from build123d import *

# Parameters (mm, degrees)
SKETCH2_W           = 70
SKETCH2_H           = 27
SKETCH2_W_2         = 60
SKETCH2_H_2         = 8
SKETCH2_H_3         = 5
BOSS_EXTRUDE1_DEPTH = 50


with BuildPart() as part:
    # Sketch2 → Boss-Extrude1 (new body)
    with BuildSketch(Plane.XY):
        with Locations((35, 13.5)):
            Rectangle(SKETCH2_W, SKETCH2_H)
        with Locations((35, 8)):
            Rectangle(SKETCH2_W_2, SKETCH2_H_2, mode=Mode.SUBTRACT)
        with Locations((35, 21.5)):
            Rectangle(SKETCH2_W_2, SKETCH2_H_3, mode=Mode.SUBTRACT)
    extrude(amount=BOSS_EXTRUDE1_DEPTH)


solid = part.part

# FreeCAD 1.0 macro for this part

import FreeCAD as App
import Part
import Sketcher
from FreeCAD import Vector

doc = App.newDocument("Part")
body = doc.addObject("PartDesign::Body", "Body")

sketch1 = body.newObject("Sketcher::SketchObject", "Sketch")
sketch1.AttachmentSupport = (doc.getObject("XY_Plane"), [""])
sketch1.MapMode = "FlatFace"
sketch1.addGeometry([
    Part.LineSegment(Vector(0, 27, 0), Vector(0, 0, 0)),
    Part.LineSegment(Vector(0, 0, 0), Vector(70, 0, 0)),
    Part.LineSegment(Vector(70, 0, 0), Vector(70, 27, 0)),
    Part.LineSegment(Vector(70, 27, 0), Vector(0, 27, 0)),
    Part.LineSegment(Vector(65, 4, 0), Vector(5, 4, 0)),
    Part.LineSegment(Vector(5, 4, 0), Vector(5, 12, 0)),
    Part.LineSegment(Vector(5, 12, 0), Vector(65, 12, 0)),
    Part.LineSegment(Vector(65, 12, 0), Vector(65, 4, 0)),
    Part.LineSegment(Vector(65, 19, 0), Vector(5, 19, 0)),
    Part.LineSegment(Vector(5, 19, 0), Vector(5, 24, 0)),
    Part.LineSegment(Vector(5, 24, 0), Vector(65, 24, 0)),
    Part.LineSegment(Vector(65, 24, 0), Vector(65, 19, 0)),
], False)
sketch1.addConstraint([
    Sketcher.Constraint("Coincident", 0, 2, 1, 1),
    Sketcher.Constraint("Coincident", 1, 2, 2, 1),
    Sketcher.Constraint("Coincident", 2, 2, 3, 1),
    Sketcher.Constraint("Coincident", 3, 2, 0, 1),
    Sketcher.Constraint("Coincident", 4, 2, 5, 1),
    Sketcher.Constraint("Coincident", 5, 2, 6, 1),
    Sketcher.Constraint("Coincident", 6, 2, 7, 1),
    Sketcher.Constraint("Coincident", 7, 2, 4, 1),
    Sketcher.Constraint("Coincident", 8, 2, 9, 1),
    Sketcher.Constraint("Coincident", 9, 2, 10, 1),
    Sketcher.Constraint("Coincident", 10, 2, 11, 1),
    Sketcher.Constraint("Coincident", 11, 2, 8, 1),
    Sketcher.Constraint("Vertical", 0),
    Sketcher.Constraint("Horizontal", 1),
    Sketcher.Constraint("Vertical", 2),
    Sketcher.Constraint("Horizontal", 3),
    Sketcher.Constraint("Horizontal", 4),
    Sketcher.Constraint("Vertical", 5),
    Sketcher.Constraint("Horizontal", 6),
    Sketcher.Constraint("Vertical", 7),
    Sketcher.Constraint("Horizontal", 8),
    Sketcher.Constraint("Vertical", 9),
    Sketcher.Constraint("Horizontal", 10),
    Sketcher.Constraint("Vertical", 11),
    Sketcher.Constraint("Coincident", 0, 2, -1, 1),
    Sketcher.Constraint("Vertical", 5, 2, 8, 2),
    Sketcher.Constraint("Vertical", 7, 2, 10, 2),
    Sketcher.Constraint("DistanceX", 1, 1, 1, 2, 70.0),
    Sketcher.Constraint("DistanceX", 4, 2, 4, 1, 60.0),
    Sketcher.Constraint("DistanceY", 0, 2, 0, 1, 27.0),
    Sketcher.Constraint("DistanceY", 5, 1, 5, 2, 8.0),
    Sketcher.Constraint("DistanceY", 9, 1, 9, 2, 5.0),
    Sketcher.Constraint("DistanceX", -1, 1, 4, 2, 5.0),
    Sketcher.Constraint("DistanceY", -1, 1, 4, 2, 4.0),
    Sketcher.Constraint("DistanceY", -1, 1, 8, 2, 19.0),
])
pad1 = body.newObject("PartDesign::Pad", "Pad")
pad1.Profile = sketch1
pad1.Length = 50

doc.recompute()
